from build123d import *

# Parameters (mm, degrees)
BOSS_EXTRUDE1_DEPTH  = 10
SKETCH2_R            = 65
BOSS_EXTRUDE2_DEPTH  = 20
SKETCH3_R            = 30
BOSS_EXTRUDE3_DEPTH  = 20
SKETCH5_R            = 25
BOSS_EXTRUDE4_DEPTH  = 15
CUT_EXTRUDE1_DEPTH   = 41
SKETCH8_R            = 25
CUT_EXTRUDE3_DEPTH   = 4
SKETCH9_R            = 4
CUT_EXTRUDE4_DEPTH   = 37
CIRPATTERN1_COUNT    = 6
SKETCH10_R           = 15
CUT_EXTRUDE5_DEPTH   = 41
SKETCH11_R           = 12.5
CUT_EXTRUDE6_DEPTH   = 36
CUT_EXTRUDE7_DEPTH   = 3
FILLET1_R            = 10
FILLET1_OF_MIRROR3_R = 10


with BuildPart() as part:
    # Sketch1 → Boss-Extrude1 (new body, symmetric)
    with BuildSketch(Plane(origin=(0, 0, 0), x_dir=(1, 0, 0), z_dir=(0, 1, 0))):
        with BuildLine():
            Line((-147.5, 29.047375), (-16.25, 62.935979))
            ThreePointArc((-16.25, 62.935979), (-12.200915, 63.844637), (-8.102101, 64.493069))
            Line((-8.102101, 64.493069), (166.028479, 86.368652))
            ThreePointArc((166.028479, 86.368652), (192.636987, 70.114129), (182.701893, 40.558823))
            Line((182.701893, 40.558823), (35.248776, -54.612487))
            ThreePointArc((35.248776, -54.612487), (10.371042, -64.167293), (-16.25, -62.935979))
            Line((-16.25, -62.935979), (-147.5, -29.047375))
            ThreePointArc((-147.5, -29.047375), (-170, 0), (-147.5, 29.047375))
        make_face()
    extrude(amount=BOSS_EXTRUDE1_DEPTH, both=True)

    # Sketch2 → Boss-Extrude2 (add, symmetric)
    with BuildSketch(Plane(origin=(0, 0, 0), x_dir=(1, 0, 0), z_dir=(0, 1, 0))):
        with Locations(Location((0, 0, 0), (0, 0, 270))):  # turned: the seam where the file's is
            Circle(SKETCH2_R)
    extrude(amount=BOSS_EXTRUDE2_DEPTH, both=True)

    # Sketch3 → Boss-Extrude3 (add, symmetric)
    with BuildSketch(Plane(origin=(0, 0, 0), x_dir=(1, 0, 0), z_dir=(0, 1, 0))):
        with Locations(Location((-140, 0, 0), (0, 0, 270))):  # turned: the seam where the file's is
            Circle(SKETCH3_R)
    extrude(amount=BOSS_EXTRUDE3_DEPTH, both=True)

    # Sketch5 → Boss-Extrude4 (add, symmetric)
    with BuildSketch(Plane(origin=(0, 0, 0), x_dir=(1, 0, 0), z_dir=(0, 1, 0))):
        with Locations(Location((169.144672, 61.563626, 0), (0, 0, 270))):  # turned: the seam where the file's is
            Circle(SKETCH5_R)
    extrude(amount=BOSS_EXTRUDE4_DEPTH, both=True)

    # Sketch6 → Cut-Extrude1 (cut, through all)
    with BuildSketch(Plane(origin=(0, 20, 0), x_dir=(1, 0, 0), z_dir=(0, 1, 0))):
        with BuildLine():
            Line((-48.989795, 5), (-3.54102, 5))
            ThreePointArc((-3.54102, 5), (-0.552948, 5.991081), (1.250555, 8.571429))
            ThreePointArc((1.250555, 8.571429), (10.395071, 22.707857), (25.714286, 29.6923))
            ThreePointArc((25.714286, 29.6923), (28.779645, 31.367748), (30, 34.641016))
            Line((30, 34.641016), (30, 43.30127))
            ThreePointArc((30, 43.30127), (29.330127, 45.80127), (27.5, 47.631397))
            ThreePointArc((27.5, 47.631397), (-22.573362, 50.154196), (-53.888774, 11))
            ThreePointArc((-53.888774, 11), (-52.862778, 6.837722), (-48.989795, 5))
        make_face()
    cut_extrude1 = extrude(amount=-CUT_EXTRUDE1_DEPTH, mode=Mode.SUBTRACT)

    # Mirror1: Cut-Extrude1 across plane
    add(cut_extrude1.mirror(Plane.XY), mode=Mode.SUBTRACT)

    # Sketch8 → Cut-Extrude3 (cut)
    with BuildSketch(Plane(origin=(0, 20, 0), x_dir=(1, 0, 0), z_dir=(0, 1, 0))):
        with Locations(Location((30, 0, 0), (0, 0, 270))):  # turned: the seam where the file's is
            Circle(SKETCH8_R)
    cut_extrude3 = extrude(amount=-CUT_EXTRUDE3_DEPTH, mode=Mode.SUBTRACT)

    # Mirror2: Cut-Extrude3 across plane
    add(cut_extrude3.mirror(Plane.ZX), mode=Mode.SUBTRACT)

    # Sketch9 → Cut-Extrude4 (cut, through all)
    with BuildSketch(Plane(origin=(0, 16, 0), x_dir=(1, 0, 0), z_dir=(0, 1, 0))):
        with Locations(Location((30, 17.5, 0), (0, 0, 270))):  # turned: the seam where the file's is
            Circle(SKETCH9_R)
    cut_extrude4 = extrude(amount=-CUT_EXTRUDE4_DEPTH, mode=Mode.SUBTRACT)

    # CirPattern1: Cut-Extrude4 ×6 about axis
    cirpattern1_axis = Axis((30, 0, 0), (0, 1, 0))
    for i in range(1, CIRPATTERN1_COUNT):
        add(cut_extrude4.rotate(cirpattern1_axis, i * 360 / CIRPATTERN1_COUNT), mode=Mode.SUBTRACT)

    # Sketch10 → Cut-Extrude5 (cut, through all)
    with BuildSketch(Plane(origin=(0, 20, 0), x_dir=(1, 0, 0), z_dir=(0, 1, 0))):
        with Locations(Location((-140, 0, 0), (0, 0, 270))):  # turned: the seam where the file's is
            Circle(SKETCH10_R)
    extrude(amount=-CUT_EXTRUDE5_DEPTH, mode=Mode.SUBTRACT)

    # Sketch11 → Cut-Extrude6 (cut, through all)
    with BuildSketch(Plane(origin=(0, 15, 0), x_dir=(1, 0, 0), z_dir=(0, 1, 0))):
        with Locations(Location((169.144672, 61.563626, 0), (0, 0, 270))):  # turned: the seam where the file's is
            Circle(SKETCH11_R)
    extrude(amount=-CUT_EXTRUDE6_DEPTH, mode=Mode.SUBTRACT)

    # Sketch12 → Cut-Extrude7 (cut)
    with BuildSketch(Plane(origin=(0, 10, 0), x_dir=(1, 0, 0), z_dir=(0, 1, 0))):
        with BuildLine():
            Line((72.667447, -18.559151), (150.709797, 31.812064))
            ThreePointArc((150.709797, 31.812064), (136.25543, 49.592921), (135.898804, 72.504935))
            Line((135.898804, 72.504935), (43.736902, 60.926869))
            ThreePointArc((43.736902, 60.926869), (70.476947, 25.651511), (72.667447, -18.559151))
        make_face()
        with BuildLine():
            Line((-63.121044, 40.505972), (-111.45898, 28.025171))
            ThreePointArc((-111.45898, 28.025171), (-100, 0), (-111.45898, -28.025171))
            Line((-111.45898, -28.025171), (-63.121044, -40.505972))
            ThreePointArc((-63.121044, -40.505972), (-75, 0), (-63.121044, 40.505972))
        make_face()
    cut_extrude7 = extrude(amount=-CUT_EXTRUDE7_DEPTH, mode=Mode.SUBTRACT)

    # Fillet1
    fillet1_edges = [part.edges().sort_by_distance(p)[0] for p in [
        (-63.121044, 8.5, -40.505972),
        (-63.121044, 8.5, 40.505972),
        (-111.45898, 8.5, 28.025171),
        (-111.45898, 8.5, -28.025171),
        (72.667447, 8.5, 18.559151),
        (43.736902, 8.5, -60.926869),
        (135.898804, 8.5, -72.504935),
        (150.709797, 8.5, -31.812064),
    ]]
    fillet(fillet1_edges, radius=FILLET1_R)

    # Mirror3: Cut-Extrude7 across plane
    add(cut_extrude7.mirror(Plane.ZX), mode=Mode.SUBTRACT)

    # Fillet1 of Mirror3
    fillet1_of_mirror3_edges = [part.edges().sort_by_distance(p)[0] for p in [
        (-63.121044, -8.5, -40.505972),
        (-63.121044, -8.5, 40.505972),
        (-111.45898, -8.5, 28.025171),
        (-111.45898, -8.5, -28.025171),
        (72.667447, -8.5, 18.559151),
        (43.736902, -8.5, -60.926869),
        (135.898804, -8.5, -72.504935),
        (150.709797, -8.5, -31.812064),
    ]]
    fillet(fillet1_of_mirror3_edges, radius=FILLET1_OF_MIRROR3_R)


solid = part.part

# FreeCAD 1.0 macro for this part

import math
import FreeCAD as App
import Part
import Sketcher

V = App.Vector


def edges_at(feature, points):
    """Names of the edges that pass closest to the given points."""
    edges = feature.Shape.Edges
    near = lambda p: min(range(len(edges)), key=lambda i: edges[i].distToShape(Part.Vertex(*p))[0])
    return sorted({f"Edge{near(p) + 1}" for p in points})

doc = App.newDocument("Part")
body = doc.addObject("PartDesign::Body", "Body")

sketch1 = body.newObject("Sketcher::SketchObject", "Sketch")
sketch1.AttachmentSupport = (doc.getObject("XZ_Plane"), [""])
sketch1.MapMode = "FlatFace"
sketch1.addGeometry([
    Part.LineSegment(V(-16.25, -62.935979, 0), V(-147.5, -29.047375, 0)),
    Part.ArcOfCircle(Part.Circle(V(-140, 0, 0), V(0, 0, 1), 30), math.radians(104.477512), math.radians(255.522488)),
    Part.LineSegment(V(-147.5, 29.047375, 0), V(-16.25, 62.935979, 0)),
    Part.ArcOfCircle(Part.Circle(V(0.000001, 0.000005, 0), V(0, 0, 1), 64.999995), math.radians(57.16041), math.radians(104.477514)),
    Part.LineSegment(V(35.248776, 54.612487, 0), V(182.701893, -40.558823, 0)),
    Part.ArcOfCircle(Part.Circle(V(169.144672, -61.563626, 0), V(0, 0, 1), 25), math.radians(-97.160412), math.radians(57.160412)),
    Part.LineSegment(V(166.028479, -86.368652, 0), V(-8.102101, -64.493069, 0)),
    Part.ArcOfCircle(Part.Circle(V(-0.000019, -0.000109, 0), V(0, 0, 1), 64.999889), math.radians(-104.47752), math.radians(-97.160408)),
], False)
sketch1.addConstraint([
    Sketcher.Constraint("Coincident", 0, 2, 1, 2),
    Sketcher.Constraint("Coincident", 1, 1, 2, 1),
    Sketcher.Constraint("Coincident", 2, 2, 3, 2),
    Sketcher.Constraint("Coincident", 3, 1, 4, 1),
    Sketcher.Constraint("Coincident", 4, 2, 5, 2),
    Sketcher.Constraint("Coincident", 5, 1, 6, 1),
    Sketcher.Constraint("Coincident", 6, 2, 7, 2),
    Sketcher.Constraint("Coincident", 7, 1, 0, 1),
    Sketcher.Constraint("Coincident", 3, 3, -1, 1),
    Sketcher.Constraint("PointOnObject", 1, 3, -1),
    Sketcher.Constraint("Radius", 1, 30.0),
    Sketcher.Constraint("Radius", 5, 25.0),
    Sketcher.Constraint("DistanceX", 1, 3, -1, 1, 140.0),
    Sketcher.Constraint("DistanceX", 0, 2, -1, 1, 147.5),
    Sketcher.Constraint("DistanceX", 1, 1, -1, 1, 147.5),
    Sketcher.Constraint("DistanceX", 2, 2, -1, 1, 16.25),
    Sketcher.Constraint("DistanceX", 7, 1, -1, 1, 16.25),
    Sketcher.Constraint("Radius", 7, 64.999889),
    Sketcher.Constraint("Radius", 3, 64.999995),
    Sketcher.Constraint("DistanceY", 5, 3, 1, 1, 90.611001),
    Sketcher.Constraint("DistanceX", 6, 2, -1, 1, 8.102101),
    Sketcher.Constraint("DistanceY", 4, 2, 2, 2, 103.494802),
    Sketcher.Constraint("DistanceX", -1, 1, 5, 3, 169.144672),
    Sketcher.Constraint("DistanceY", 7, 3, -1, 1, 0.000109),
    Sketcher.Constraint("DistanceX", -1, 1, 5, 1, 166.028479),
    Sketcher.Constraint("DistanceY", 6, 2, -1, 1, 64.493069),
    Sketcher.Constraint("DistanceY", 3, 1, 2, 2, 8.323492),
])
pad1 = body.newObject("PartDesign::Pad", "Pad")
pad1.Profile = sketch1
pad1.Length = 20
pad1.Midplane = True

sketch2 = body.newObject("Sketcher::SketchObject", "Sketch001")
sketch2.AttachmentSupport = (doc.getObject("XZ_Plane"), [""])
sketch2.MapMode = "FlatFace"
sketch2.addGeometry(Part.Circle(V(0, 0, 0), V(0, 0, 1), 65), False)
sketch2.addConstraint([
    Sketcher.Constraint("Coincident", 0, 3, -1, 1),
    Sketcher.Constraint("Diameter", 0, 130.0),
])
pad2 = body.newObject("PartDesign::Pad", "Pad001")
pad2.Profile = sketch2
pad2.Length = 40
pad2.Midplane = True

sketch3 = body.newObject("Sketcher::SketchObject", "Sketch002")
sketch3.AttachmentSupport = (doc.getObject("XZ_Plane"), [""])
sketch3.MapMode = "FlatFace"
sketch3.addGeometry(Part.Circle(V(-140, 0, 0), V(0, 0, 1), 30), False)
sketch3.addConstraint([
    Sketcher.Constraint("PointOnObject", 0, 3, -1),
    Sketcher.Constraint("Diameter", 0, 60.0),
    Sketcher.Constraint("DistanceX", 0, 3, -1, 1, 140.0),
])
pad3 = body.newObject("PartDesign::Pad", "Pad002")
pad3.Profile = sketch3
pad3.Length = 40
pad3.Midplane = True

sketch4 = body.newObject("Sketcher::SketchObject", "Sketch003")
sketch4.AttachmentSupport = (doc.getObject("XZ_Plane"), [""])
sketch4.MapMode = "FlatFace"
sketch4.addGeometry(Part.Circle(V(169.144672, -61.563626, 0), V(0, 0, 1), 25), False)
sketch4.addConstraint([
    Sketcher.Constraint("Diameter", 0, 50.0),
    Sketcher.Constraint("DistanceX", -1, 1, 0, 3, 169.144672),
    Sketcher.Constraint("DistanceY", 0, 3, -1, 1, 61.563626),
])
pad4 = body.newObject("PartDesign::Pad", "Pad003")
pad4.Profile = sketch4
pad4.Length = 30
pad4.Midplane = True

sketch5 = body.newObject("Sketcher::SketchObject", "Sketch004")
sketch5.AttachmentSupport = (doc.getObject("XZ_Plane"), [""])
sketch5.MapMode = "FlatFace"
sketch5.AttachmentOffset = App.Placement(V(0, 0, -20), App.Rotation())
sketch5.addGeometry([
    Part.LineSegment(V(-48.989795, -5, 0), V(-3.54102, -5, 0)),
    Part.ArcOfCircle(Part.Circle(V(-3.541019, -9.999999, 0), V(0, 0, 1), 4.999999), math.radians(16.601537), math.radians(90.000014)),
    Part.ArcOfCircle(Part.Circle(V(30, -0.000001, 0), V(0, 0, 1), 29.999999), math.radians(-163.398451), math.radians(-98.21321)),
    Part.ArcOfCircle(Part.Circle(V(25.000001, -34.641016, 0), V(0, 0, 1), 4.999999), math.radians(-0.000004), math.radians(81.786796)),
    Part.LineSegment(V(30, -34.641016, 0), V(30, -43.30127, 0)),
    Part.ArcOfCircle(Part.Circle(V(25, -43.30127, 0), V(0, 0, 1), 5), math.radians(-60), math.radians(-0.000001)),
    Part.ArcOfCircle(Part.Circle(V(-0.000001, -0.000002, 0), V(0, 0, 1), 54.999999), math.radians(-168.463042), math.radians(-59.999999)),
    Part.ArcOfCircle(Part.Circle(V(-48.989795, -9.999999, 0), V(0, 0, 1), 4.999999), math.radians(89.999998), math.radians(191.536967)),
], False)
sketch5.addConstraint([
    Sketcher.Constraint("Tangent", 0, 2, 1, 2),
    Sketcher.Constraint("Tangent", 1, 1, 2, 1),
    Sketcher.Constraint("Tangent", 2, 2, 3, 2),
    Sketcher.Constraint("Tangent", 3, 1, 4, 1),
    Sketcher.Constraint("Tangent", 4, 2, 5, 2),
    Sketcher.Constraint("Tangent", 5, 1, 6, 2),
    Sketcher.Constraint("Tangent", 6, 1, 7, 2),
    Sketcher.Constraint("Tangent", 7, 1, 0, 1),
    Sketcher.Constraint("Horizontal", 0),
    Sketcher.Constraint("Vertical", 4),
    Sketcher.Constraint("Coincident", 6, 3, -1, 1),
    Sketcher.Constraint("Equal", 1, 3),
    Sketcher.Constraint("Equal", 3, 5),
    Sketcher.Constraint("Equal", 5, 7),
    Sketcher.Constraint("PointOnObject", 2, 3, -1),
    Sketcher.Constraint("Vertical", 2, 3, 3, 1),
    Sketcher.Constraint("Radius", 1, 4.999999),
    Sketcher.Constraint("Radius", 2, 29.999999),
    Sketcher.Constraint("Radius", 6, 54.999999),
    Sketcher.Constraint("DistanceY", 1, 3, -1, 1, 9.999999),
    Sketcher.Constraint("DistanceX", -1, 1, 2, 3, 30.0),
])
pocket1 = body.newObject("PartDesign::Pocket", "Pocket")
pocket1.Profile = sketch5
pocket1.Type = "ThroughAll"
pocket1.Reversed = True
doc.recompute()

mirrored = body.newObject("PartDesign::Mirrored", "Mirrored")
mirrored.Originals = [pocket1]
mirrored.MirrorPlane = (doc.getObject("XY_Plane"), [""])
body.Tip = mirrored

sketch6 = body.newObject("Sketcher::SketchObject", "Sketch005")
sketch6.AttachmentSupport = (doc.getObject("XZ_Plane"), [""])
sketch6.MapMode = "FlatFace"
sketch6.AttachmentOffset = App.Placement(V(0, 0, -20), App.Rotation())
sketch6.addGeometry(Part.Circle(V(30, 0, 0), V(0, 0, 1), 25), False)
sketch6.addConstraint([
    Sketcher.Constraint("PointOnObject", 0, 3, -1),
    Sketcher.Constraint("Diameter", 0, 50.0),
    Sketcher.Constraint("DistanceX", -1, 1, 0, 3, 30.0),
])
pocket2 = body.newObject("PartDesign::Pocket", "Pocket001")
pocket2.Profile = sketch6
pocket2.Length = 4
pocket2.Reversed = True
doc.recompute()

mirrored2 = body.newObject("PartDesign::Mirrored", "Mirrored001")
mirrored2.Originals = [pocket2]
mirrored2.MirrorPlane = (doc.getObject("XZ_Plane"), [""])
body.Tip = mirrored2

sketch7 = body.newObject("Sketcher::SketchObject", "Sketch006")
sketch7.AttachmentSupport = (doc.getObject("XZ_Plane"), [""])
sketch7.MapMode = "FlatFace"
sketch7.AttachmentOffset = App.Placement(V(0, 0, -16), App.Rotation())
sketch7.addGeometry(Part.Circle(V(30, -17.5, 0), V(0, 0, 1), 4), False)
sketch7.addConstraint([
    Sketcher.Constraint("Diameter", 0, 8.0),
    Sketcher.Constraint("DistanceX", -1, 1, 0, 3, 30.0),
    Sketcher.Constraint("DistanceY", 0, 3, -1, 1, 17.5),
])
pocket3 = body.newObject("PartDesign::Pocket", "Pocket002")
pocket3.Profile = sketch7
pocket3.Type = "ThroughAll"
pocket3.Reversed = True
doc.recompute()

datumline = body.newObject("PartDesign::Line", "DatumLine")
datumline.Placement = App.Placement(V(30, 0, 0), App.Rotation(V(0, 0, 1), V(0, 1, 0)))
polarpattern = body.newObject("PartDesign::PolarPattern", "PolarPattern")
polarpattern.Originals = [pocket3]
polarpattern.Axis = (datumline, [""])
polarpattern.Angle = 360
polarpattern.Occurrences = 6
body.Tip = polarpattern

sketch8 = body.newObject("Sketcher::SketchObject", "Sketch007")
sketch8.AttachmentSupport = (doc.getObject("XZ_Plane"), [""])
sketch8.MapMode = "FlatFace"
sketch8.AttachmentOffset = App.Placement(V(0, 0, -20), App.Rotation())
sketch8.addGeometry(Part.Circle(V(-140, 0, 0), V(0, 0, 1), 15), False)
sketch8.addConstraint([
    Sketcher.Constraint("PointOnObject", 0, 3, -1),
    Sketcher.Constraint("Diameter", 0, 30.0),
    Sketcher.Constraint("DistanceX", 0, 3, -1, 1, 140.0),
])
pocket4 = body.newObject("PartDesign::Pocket", "Pocket003")
pocket4.Profile = sketch8
pocket4.Type = "ThroughAll"
pocket4.Reversed = True

sketch9 = body.newObject("Sketcher::SketchObject", "Sketch008")
sketch9.AttachmentSupport = (doc.getObject("XZ_Plane"), [""])
sketch9.MapMode = "FlatFace"
sketch9.AttachmentOffset = App.Placement(V(0, 0, -15), App.Rotation())
sketch9.addGeometry(Part.Circle(V(169.144672, -61.563626, 0), V(0, 0, 1), 12.5), False)
sketch9.addConstraint([
    Sketcher.Constraint("Diameter", 0, 25.0),
    Sketcher.Constraint("DistanceX", -1, 1, 0, 3, 169.144672),
    Sketcher.Constraint("DistanceY", 0, 3, -1, 1, 61.563626),
])
pocket5 = body.newObject("PartDesign::Pocket", "Pocket004")
pocket5.Profile = sketch9
pocket5.Type = "ThroughAll"
pocket5.Reversed = True

sketch10 = body.newObject("Sketcher::SketchObject", "Sketch009")
sketch10.AttachmentSupport = (doc.getObject("XZ_Plane"), [""])
sketch10.MapMode = "FlatFace"
sketch10.AttachmentOffset = App.Placement(V(0, 0, -10), App.Rotation())
sketch10.addGeometry([
    Part.LineSegment(V(72.667447, 18.559151, 0), V(150.709797, -31.812064, 0)),
    Part.ArcOfCircle(Part.Circle(V(169.144672, -61.563625, 0), V(0, 0, 1), 35), math.radians(121.78348), math.radians(198.216522)),
    Part.LineSegment(V(135.898804, -72.504935, 0), V(43.736902, -60.926869, 0)),
    Part.ArcOfCircle(Part.Circle(V(0.000004, -0.000002, 0), V(0, 0, 1), 74.999996), math.radians(-54.326985), math.radians(14.326986)),
    Part.LineSegment(V(-63.121044, -40.505972, 0), V(-111.45898, -28.025171, 0)),
    Part.ArcOfCircle(Part.Circle(V(-140.000001, 0, 0), V(0, 0, 1), 40.000001), math.radians(-44.477511), math.radians(44.477511)),
    Part.LineSegment(V(-111.45898, 28.025171, 0), V(-63.121044, 40.505972, 0)),
    Part.ArcOfCircle(Part.Circle(V(-0.000002, 0, 0), V(0, 0, 1), 74.999998), math.radians(147.31094), math.radians(212.68906)),
], False)
sketch10.addConstraint([
    Sketcher.Constraint("Coincident", 0, 2, 1, 1),
    Sketcher.Constraint("Coincident", 1, 2, 2, 1),
    Sketcher.Constraint("Coincident", 2, 2, 3, 1),
    Sketcher.Constraint("Coincident", 3, 2, 0, 1),
    Sketcher.Constraint("Coincident", 4, 2, 5, 1),
    Sketcher.Constraint("Coincident", 5, 2, 6, 1),
    Sketcher.Constraint("Coincident", 6, 2, 7, 1),
    Sketcher.Constraint("Coincident", 7, 2, 4, 1),
    Sketcher.Constraint("Coincident", 3, 3, -1, 1),
    Sketcher.Constraint("Coincident", 7, 3, -1, 1),
    Sketcher.Constraint("Symmetric", 4, 2, 5, 2, -1),
    Sketcher.Constraint("Vertical", 6, 2, 7, 2),
    Sketcher.Constraint("Equal", 0, 2),
    Sketcher.Constraint("Radius", 1, 35.0),
    Sketcher.Constraint("Radius", 5, 40.000001),
    Sketcher.Constraint("Radius", 7, 74.999998),
    Sketcher.Constraint("DistanceX", 5, 3, -1, 1, 140.000001),
    Sketcher.Constraint("Radius", 3, 74.999996),
    Sketcher.Constraint("DistanceX", 7, 3, 0, 2, 150.709799),
    Sketcher.Constraint("DistanceX", 3, 3, 1, 2, 135.8988),
    Sketcher.Constraint("DistanceY", 2, 2, 4, 2, 32.901698),
    Sketcher.Constraint("DistanceY", 5, 2, 6, 2, 12.480801),
    Sketcher.Constraint("DistanceY", 2, 2, -1, 1, 60.926869),
    Sketcher.Constraint("DistanceY", -1, 1, 3, 2, 18.559151),
    Sketcher.Constraint("DistanceX", 3, 3, 1, 3, 169.144668),
])
pocket6 = body.newObject("PartDesign::Pocket", "Pocket005")
pocket6.Profile = sketch10
pocket6.Length = 3
pocket6.Reversed = True
doc.recompute()

fillet = body.newObject("PartDesign::Fillet", "Fillet")
fillet.Base = (pocket6, edges_at(pocket6, [
    (-63.121, 8.5, -40.506),
    (-63.121, 8.5, 40.506),
    (-111.459, 8.5, 28.025),
    (-111.459, 8.5, -28.025),
    (72.667, 8.5, 18.559),
    (43.737, 8.5, -60.927),
    (135.899, 8.5, -72.505),
    (150.71, 8.5, -31.812),
]))
fillet.Radius = 10
doc.recompute()

mirrored3 = body.newObject("PartDesign::Mirrored", "Mirrored002")
mirrored3.Originals = [pocket6]
mirrored3.MirrorPlane = (doc.getObject("XZ_Plane"), [""])
body.Tip = mirrored3
doc.recompute()

fillet2 = body.newObject("PartDesign::Fillet", "Fillet001")
fillet2.Base = (mirrored3, edges_at(mirrored3, [
    (-63.121, -8.5, -40.506),
    (-63.121, -8.5, 40.506),
    (-111.459, -8.5, 28.025),
    (-111.459, -8.5, -28.025),
    (72.667, -8.5, 18.559),
    (43.737, -8.5, -60.927),
    (135.899, -8.5, -72.505),
    (150.71, -8.5, -31.812),
]))
fillet2.Radius = 10

doc.recompute()
